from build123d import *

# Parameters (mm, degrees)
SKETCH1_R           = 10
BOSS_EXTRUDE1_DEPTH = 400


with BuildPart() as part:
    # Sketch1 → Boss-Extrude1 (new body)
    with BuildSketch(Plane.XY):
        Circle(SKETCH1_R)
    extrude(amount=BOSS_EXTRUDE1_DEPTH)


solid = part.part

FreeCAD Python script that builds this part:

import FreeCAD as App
import Part
import Sketcher
from FreeCAD import Vector
Q = App.Units.Quantity

doc = App.newDocument("Part")
body = doc.addObject("PartDesign::Body", "Body")

sketch1 = doc.addObject("Sketcher::SketchObject", "Sketch")
body.addObject(sketch1)
sketch1.AttachmentSupport = (doc.XY_Plane, [""])
sketch1.MapMode = "FlatFace"
sketch1.addGeometry(Part.Circle(Vector(0, 0, 0), Vector(0, 0, 1), 10), False)
sketch1.addConstraint([
    Sketcher.Constraint("Coincident", 0, 3, -1, 1),
    Sketcher.Constraint("Diameter", 0, Q("20 mm")),
])
pad1 = doc.addObject("PartDesign::Pad", "Pad")
body.addObject(pad1)
pad1.Profile = sketch1
pad1.Length = 400

doc.recompute()
